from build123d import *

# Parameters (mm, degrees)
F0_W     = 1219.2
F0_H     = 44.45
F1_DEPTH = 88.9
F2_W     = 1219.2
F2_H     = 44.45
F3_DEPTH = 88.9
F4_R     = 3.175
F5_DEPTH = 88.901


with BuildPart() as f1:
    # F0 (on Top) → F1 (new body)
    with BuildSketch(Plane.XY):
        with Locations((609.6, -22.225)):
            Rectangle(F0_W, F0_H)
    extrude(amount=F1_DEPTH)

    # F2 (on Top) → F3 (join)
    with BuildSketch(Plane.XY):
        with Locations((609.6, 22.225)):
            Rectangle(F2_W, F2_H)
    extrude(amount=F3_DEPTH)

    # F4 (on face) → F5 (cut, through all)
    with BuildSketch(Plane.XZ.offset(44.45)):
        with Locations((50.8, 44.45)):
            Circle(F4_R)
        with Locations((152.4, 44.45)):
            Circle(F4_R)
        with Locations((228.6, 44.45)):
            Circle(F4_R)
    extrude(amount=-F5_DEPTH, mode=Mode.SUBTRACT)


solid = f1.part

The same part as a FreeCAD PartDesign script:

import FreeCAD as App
import Part
import Sketcher
Q = App.Units.Quantity

doc = App.newDocument("Part")
params = doc.addObject("Spreadsheet::Sheet", "Params")
for row, (alias, value) in enumerate([
    ("sketch1_width", "48 in"),
    ("sketch1_height", "1.75 in"),
    ("pad1_length", "3.5 in"),
    ("sketch2_width", "48 in"),
    ("sketch2_height", "1.75 in"),
    ("pad2_length", "3.5 in"),
    ("sketch3_diameter", "0.25 in"),
], start=1):
    params.set(f"A{row}", alias)
    params.set(f"B{row}", "=" + value)
    params.setAlias(f"B{row}", alias)

body = doc.addObject("PartDesign::Body", "Body")

# Sketch on XY plane
sketch1 = body.newObject("Sketcher::SketchObject", "Sketch")
sketch1.AttachmentSupport = (doc.getObject("XY_Plane"), [""])
sketch1.MapMode = "FlatFace"
sketch1.addGeometry(Part.LineSegment(App.Vector(0, 0, 0), App.Vector(0, -44, 0)), False)
sketch1.addGeometry(Part.LineSegment(App.Vector(0, -44, 0), App.Vector(1219, -44, 0)), False)
sketch1.addGeometry(Part.LineSegment(App.Vector(1219, -44, 0), App.Vector(1219, 0, 0)), False)
sketch1.addGeometry(Part.LineSegment(App.Vector(1219, 0, 0), App.Vector(0, 0, 0)), False)
sketch1.addConstraint(Sketcher.Constraint("Coincident", 0, 2, 1, 1))
sketch1.addConstraint(Sketcher.Constraint("Coincident", 1, 2, 2, 1))
sketch1.addConstraint(Sketcher.Constraint("Coincident", 2, 2, 3, 1))
sketch1.addConstraint(Sketcher.Constraint("Coincident", 3, 2, 0, 1))
sketch1.addConstraint(Sketcher.Constraint("Vertical", 0))
sketch1.addConstraint(Sketcher.Constraint("Horizontal", 1))
sketch1.addConstraint(Sketcher.Constraint("Vertical", 2))
sketch1.addConstraint(Sketcher.Constraint("Horizontal", 3))
sketch1.addConstraint(Sketcher.Constraint("Coincident", 3, 2, -1, 1))
sketch1.addConstraint(Sketcher.Constraint("DistanceX", 1, 1, 1, 2, Q("48 in")))
sketch1.addConstraint(Sketcher.Constraint("DistanceY", 0, 2, 0, 1, Q("1.75 in")))
sketch1.setExpression("Constraints[9]", "Params.sketch1_width")
sketch1.setExpression("Constraints[10]", "Params.sketch1_height")
pad1 = body.newObject("PartDesign::Pad", "Pad")
pad1.Profile = sketch1
pad1.setExpression("Length", "Params.pad1_length")

# Sketch on XY plane
sketch2 = body.newObject("Sketcher::SketchObject", "Sketch001")
sketch2.AttachmentSupport = (doc.getObject("XY_Plane"), [""])
sketch2.MapMode = "FlatFace"
sketch2.addGeometry(Part.LineSegment(App.Vector(0, 44, 0), App.Vector(0, 0, 0)), False)
sketch2.addGeometry(Part.LineSegment(App.Vector(0, 0, 0), App.Vector(1219, 0, 0)), False)
sketch2.addGeometry(Part.LineSegment(App.Vector(1219, 0, 0), App.Vector(1219, 44, 0)), False)
sketch2.addGeometry(Part.LineSegment(App.Vector(1219, 44, 0), App.Vector(0, 44, 0)), False)
sketch2.addConstraint(Sketcher.Constraint("Coincident", 0, 2, 1, 1))
sketch2.addConstraint(Sketcher.Constraint("Coincident", 1, 2, 2, 1))
sketch2.addConstraint(Sketcher.Constraint("Coincident", 2, 2, 3, 1))
sketch2.addConstraint(Sketcher.Constraint("Coincident", 3, 2, 0, 1))
sketch2.addConstraint(Sketcher.Constraint("Vertical", 0))
sketch2.addConstraint(Sketcher.Constraint("Horizontal", 1))
sketch2.addConstraint(Sketcher.Constraint("Vertical", 2))
sketch2.addConstraint(Sketcher.Constraint("Horizontal", 3))
sketch2.addConstraint(Sketcher.Constraint("Coincident", 0, 2, -1, 1))
sketch2.addConstraint(Sketcher.Constraint("DistanceX", 1, 1, 1, 2, Q("48 in")))
sketch2.addConstraint(Sketcher.Constraint("DistanceY", 0, 2, 0, 1, Q("1.75 in")))
sketch2.setExpression("Constraints[9]", "Params.sketch2_width")
sketch2.setExpression("Constraints[10]", "Params.sketch2_height")
pad2 = body.newObject("PartDesign::Pad", "Pad001")
pad2.Profile = sketch2
pad2.setExpression("Length", "Params.pad2_length")

# Sketch on XZ plane
sketch3 = body.newObject("Sketcher::SketchObject", "Sketch002")
sketch3.AttachmentSupport = (doc.getObject("XZ_Plane"), [""])
sketch3.MapMode = "FlatFace"
sketch3.AttachmentOffset = App.Placement(App.Vector(0, 0, 1.75 * 25.4), App.Rotation())
sketch3.addGeometry(Part.Circle(App.Vector(50.8, 44.5, 0), App.Vector(0, 0, 1), 3.2), False)
sketch3.addGeometry(Part.Circle(App.Vector(152.4, 44.5, 0), App.Vector(0, 0, 1), 3.2), False)
sketch3.addGeometry(Part.Circle(App.Vector(228.6, 44.5, 0), App.Vector(0, 0, 1), 3.2), False)
sketch3.addConstraint(Sketcher.Constraint("Equal", 0, 1))
sketch3.addConstraint(Sketcher.Constraint("Equal", 1, 2))
sketch3.addConstraint(Sketcher.Constraint("Horizontal", 0, 3, 1, 3))
sketch3.addConstraint(Sketcher.Constraint("Horizontal", 1, 3, 2, 3))
sketch3.addConstraint(Sketcher.Constraint("Diameter", 0, Q("0.25 in")))
sketch3.addConstraint(Sketcher.Constraint("DistanceX", -1, 1, 0, 3, Q("2 in")))
sketch3.addConstraint(Sketcher.Constraint("DistanceX", -1, 1, 1, 3, Q("6 in")))
sketch3.addConstraint(Sketcher.Constraint("DistanceX", -1, 1, 2, 3, Q("9 in")))
sketch3.addConstraint(Sketcher.Constraint("DistanceY", -1, 1, 0, 3, Q("1.75 in")))
sketch3.setExpression("Constraints[4]", "Params.sketch3_diameter")
pocket1 = body.newObject("PartDesign::Pocket", "Pocket")
pocket1.Profile = sketch3
pocket1.Type = "ThroughAll"

doc.recompute()
